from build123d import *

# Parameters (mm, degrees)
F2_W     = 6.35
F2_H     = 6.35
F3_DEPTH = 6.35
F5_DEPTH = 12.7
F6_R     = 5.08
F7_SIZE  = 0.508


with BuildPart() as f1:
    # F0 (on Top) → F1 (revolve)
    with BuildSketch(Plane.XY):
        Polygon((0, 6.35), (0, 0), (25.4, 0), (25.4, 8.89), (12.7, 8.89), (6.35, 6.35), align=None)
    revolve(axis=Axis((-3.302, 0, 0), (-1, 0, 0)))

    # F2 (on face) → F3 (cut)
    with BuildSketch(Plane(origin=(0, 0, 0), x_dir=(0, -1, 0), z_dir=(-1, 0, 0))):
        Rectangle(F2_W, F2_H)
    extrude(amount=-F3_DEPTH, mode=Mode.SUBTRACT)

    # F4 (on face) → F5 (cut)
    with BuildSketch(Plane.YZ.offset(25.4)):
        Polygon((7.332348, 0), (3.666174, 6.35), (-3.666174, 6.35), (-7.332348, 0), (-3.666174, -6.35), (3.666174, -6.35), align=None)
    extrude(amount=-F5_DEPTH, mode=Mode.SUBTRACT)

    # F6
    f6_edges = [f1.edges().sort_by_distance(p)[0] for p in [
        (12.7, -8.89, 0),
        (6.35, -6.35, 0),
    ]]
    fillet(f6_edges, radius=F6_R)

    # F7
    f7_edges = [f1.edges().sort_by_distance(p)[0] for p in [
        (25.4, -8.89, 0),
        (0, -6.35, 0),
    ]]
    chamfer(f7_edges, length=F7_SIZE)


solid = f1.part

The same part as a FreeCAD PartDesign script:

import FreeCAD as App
import Part
import Sketcher
from FreeCAD import Vector
Q = App.Units.Quantity


def edges_at(feature, points):
    """Names of the edges that pass closest to the given points."""
    edges = feature.Shape.Edges
    near = lambda p: min(range(len(edges)), key=lambda i: edges[i].distToShape(Part.Vertex(*p))[0])
    return sorted({f"Edge{near(p) + 1}" for p in points})


def add_polygon(sketch, points):
    """Adds a closed chain of lines whose ends are joined by coincident constraints."""
    first, n = sketch.GeometryCount, len(points)
    for a, b in zip(points, points[1:] + points[:1]):
        sketch.addGeometry(Part.LineSegment(App.Vector(*a, 0), App.Vector(*b, 0)), False)
    for i in range(n):
        sketch.addConstraint(Sketcher.Constraint("Coincident", first + i, 2, first + (i + 1) % n, 1))

doc = App.newDocument("Part")
params = doc.addObject("Spreadsheet::Sheet", "Params")
for row, (alias, value) in enumerate([
    ("sketch1_width", "1 in"),
    ("sketch1_width2", "0.5 in"),
    ("sketch1_width3", "0.25 in"),
    ("sketch1_height", "0.35 in"),
    ("revolution_angle", "360 deg"),
    ("sketch2_width", "0.25 in"),
    ("pocket1_length", "0.25 in"),
    ("pocket2_length", "0.5 in"),
    ("fillet_radius", "0.2 in"),
    ("chamfer_size", "0.02 in"),
], start=1):
    params.set(f"A{row}", alias)
    params.set(f"B{row}", "=" + value)
    params.setAlias(f"B{row}", alias)

body = doc.addObject("PartDesign::Body", "Body")

# Sketch on XY plane
sketch1 = body.newObject("Sketcher::SketchObject", "Sketch")
sketch1.AttachmentSupport = (doc.getObject("XY_Plane"), [""])
sketch1.MapMode = "FlatFace"
add_polygon(sketch1, [(0, 6), (0, 0), (25, 0), (25, 9), (13, 9), (6, 6)])  # lines 0-5
sketch1.addConstraint(Sketcher.Constraint("Vertical", 0))
sketch1.addConstraint(Sketcher.Constraint("Horizontal", 1))
sketch1.addConstraint(Sketcher.Constraint("Vertical", 2))
sketch1.addConstraint(Sketcher.Constraint("Horizontal", 3))
sketch1.addConstraint(Sketcher.Constraint("Horizontal", 5))
sketch1.addConstraint(Sketcher.Constraint("Coincident", 0, 2, -1, 1))
sketch1.addConstraint(Sketcher.Constraint("Equal", 5, 0))
sketch1.addConstraint(Sketcher.Constraint("DistanceX", 1, 1, 1, 2, Q("1 in")))
sketch1.addConstraint(Sketcher.Constraint("DistanceX", 3, 2, 3, 1, Q("0.5 in")))
sketch1.addConstraint(Sketcher.Constraint("DistanceX", 5, 2, 5, 1, Q("0.25 in")))
sketch1.addConstraint(Sketcher.Constraint("DistanceY", 2, 1, 2, 2, Q("0.35 in")))
sketch1.setExpression("Constraints[13]", "Params.sketch1_width")
sketch1.setExpression("Constraints[14]", "Params.sketch1_width2")
sketch1.setExpression("Constraints[15]", "Params.sketch1_width3")
sketch1.setExpression("Constraints[16]", "Params.sketch1_height")
revolution = body.newObject("PartDesign::Revolution", "Revolution")
revolution.Profile = sketch1
revolution.ReferenceAxis = (sketch1, ["H_Axis"])
revolution.setExpression("Angle", "Params.revolution_angle")

# Sketch on YZ plane
sketch2 = body.newObject("Sketcher::SketchObject", "Sketch001")
sketch2.AttachmentSupport = (doc.getObject("YZ_Plane"), [""])
sketch2.MapMode = "FlatFace"
add_polygon(sketch2, [(3, 3), (3, -3), (-3, -3), (-3, 3)])  # lines 0-3
sketch2.addConstraint(Sketcher.Constraint("Vertical", 0))
sketch2.addConstraint(Sketcher.Constraint("Horizontal", 1))
sketch2.addConstraint(Sketcher.Constraint("Vertical", 2))
sketch2.addConstraint(Sketcher.Constraint("Horizontal", 3))
sketch2.addConstraint(Sketcher.Constraint("Symmetric", 0, 2, 2, 2, -1, 1))
sketch2.addConstraint(Sketcher.Constraint("Equal", 3, 0))
sketch2.addConstraint(Sketcher.Constraint("DistanceX", 1, 2, 1, 1, Q("0.25 in")))
sketch2.setExpression("Constraints[10]", "Params.sketch2_width")
pocket1 = body.newObject("PartDesign::Pocket", "Pocket")
pocket1.Profile = sketch2
pocket1.setExpression("Length", "Params.pocket1_length")
pocket1.Reversed = True

# Sketch on YZ plane
sketch3 = body.newObject("Sketcher::SketchObject", "Sketch002")
sketch3.AttachmentSupport = (doc.getObject("YZ_Plane"), [""])
sketch3.MapMode = "FlatFace"
sketch3.AttachmentOffset = App.Placement(Vector(0, 0, 1 * 25.4), App.Rotation())
add_polygon(sketch3, [(7, 0), (4, 6), (-4, 6), (-7, 0), (-4, -6), (4, -6)])  # lines 0-5
sketch3.addConstraint(Sketcher.Constraint("Horizontal", 1))
sketch3.addConstraint(Sketcher.Constraint("Horizontal", 4))
sketch3.addConstraint(Sketcher.Constraint("Symmetric", 0, 2, 3, 2, -1, 1))
sketch3.addConstraint(Sketcher.Constraint("Symmetric", 2, 2, 5, 2, -1, 1))
sketch3.addConstraint(Sketcher.Constraint("PointOnObject", 2, 2, -1))
sketch3.addConstraint(Sketcher.Constraint("Parallel", 2, 5))
sketch3.addConstraint(Sketcher.Constraint("Vertical", 1, 2, 3, 2))
sketch3.addConstraint(Sketcher.Constraint("Angle", 0, Q("119.999999 deg")))
sketch3.addConstraint(Sketcher.Constraint("DistanceY", 3, 2, 1, 2, Q("0.5 in")))
sketch3.addConstraint(Sketcher.Constraint("DistanceX", 1, 2, 1, 1, Q("7.332348 mm")))
pocket2 = body.newObject("PartDesign::Pocket", "Pocket001")
pocket2.Profile = sketch3
pocket2.setExpression("Length", "Params.pocket2_length")
doc.recompute()

fillet = body.newObject("PartDesign::Fillet", "Fillet")
fillet.Base = (pocket2, edges_at(pocket2, [(12.7, -8.89, 0), (6.35, -6.35, 0)]))
fillet.setExpression("Radius", "Params.fillet_radius")
doc.recompute()

chamfer = body.newObject("PartDesign::Chamfer", "Chamfer")
chamfer.Base = (fillet, edges_at(fillet, [(25.4, -8.89, 0), (0, -6.35, 0)]))
chamfer.setExpression("Size", "Params.chamfer_size")

doc.recompute()
